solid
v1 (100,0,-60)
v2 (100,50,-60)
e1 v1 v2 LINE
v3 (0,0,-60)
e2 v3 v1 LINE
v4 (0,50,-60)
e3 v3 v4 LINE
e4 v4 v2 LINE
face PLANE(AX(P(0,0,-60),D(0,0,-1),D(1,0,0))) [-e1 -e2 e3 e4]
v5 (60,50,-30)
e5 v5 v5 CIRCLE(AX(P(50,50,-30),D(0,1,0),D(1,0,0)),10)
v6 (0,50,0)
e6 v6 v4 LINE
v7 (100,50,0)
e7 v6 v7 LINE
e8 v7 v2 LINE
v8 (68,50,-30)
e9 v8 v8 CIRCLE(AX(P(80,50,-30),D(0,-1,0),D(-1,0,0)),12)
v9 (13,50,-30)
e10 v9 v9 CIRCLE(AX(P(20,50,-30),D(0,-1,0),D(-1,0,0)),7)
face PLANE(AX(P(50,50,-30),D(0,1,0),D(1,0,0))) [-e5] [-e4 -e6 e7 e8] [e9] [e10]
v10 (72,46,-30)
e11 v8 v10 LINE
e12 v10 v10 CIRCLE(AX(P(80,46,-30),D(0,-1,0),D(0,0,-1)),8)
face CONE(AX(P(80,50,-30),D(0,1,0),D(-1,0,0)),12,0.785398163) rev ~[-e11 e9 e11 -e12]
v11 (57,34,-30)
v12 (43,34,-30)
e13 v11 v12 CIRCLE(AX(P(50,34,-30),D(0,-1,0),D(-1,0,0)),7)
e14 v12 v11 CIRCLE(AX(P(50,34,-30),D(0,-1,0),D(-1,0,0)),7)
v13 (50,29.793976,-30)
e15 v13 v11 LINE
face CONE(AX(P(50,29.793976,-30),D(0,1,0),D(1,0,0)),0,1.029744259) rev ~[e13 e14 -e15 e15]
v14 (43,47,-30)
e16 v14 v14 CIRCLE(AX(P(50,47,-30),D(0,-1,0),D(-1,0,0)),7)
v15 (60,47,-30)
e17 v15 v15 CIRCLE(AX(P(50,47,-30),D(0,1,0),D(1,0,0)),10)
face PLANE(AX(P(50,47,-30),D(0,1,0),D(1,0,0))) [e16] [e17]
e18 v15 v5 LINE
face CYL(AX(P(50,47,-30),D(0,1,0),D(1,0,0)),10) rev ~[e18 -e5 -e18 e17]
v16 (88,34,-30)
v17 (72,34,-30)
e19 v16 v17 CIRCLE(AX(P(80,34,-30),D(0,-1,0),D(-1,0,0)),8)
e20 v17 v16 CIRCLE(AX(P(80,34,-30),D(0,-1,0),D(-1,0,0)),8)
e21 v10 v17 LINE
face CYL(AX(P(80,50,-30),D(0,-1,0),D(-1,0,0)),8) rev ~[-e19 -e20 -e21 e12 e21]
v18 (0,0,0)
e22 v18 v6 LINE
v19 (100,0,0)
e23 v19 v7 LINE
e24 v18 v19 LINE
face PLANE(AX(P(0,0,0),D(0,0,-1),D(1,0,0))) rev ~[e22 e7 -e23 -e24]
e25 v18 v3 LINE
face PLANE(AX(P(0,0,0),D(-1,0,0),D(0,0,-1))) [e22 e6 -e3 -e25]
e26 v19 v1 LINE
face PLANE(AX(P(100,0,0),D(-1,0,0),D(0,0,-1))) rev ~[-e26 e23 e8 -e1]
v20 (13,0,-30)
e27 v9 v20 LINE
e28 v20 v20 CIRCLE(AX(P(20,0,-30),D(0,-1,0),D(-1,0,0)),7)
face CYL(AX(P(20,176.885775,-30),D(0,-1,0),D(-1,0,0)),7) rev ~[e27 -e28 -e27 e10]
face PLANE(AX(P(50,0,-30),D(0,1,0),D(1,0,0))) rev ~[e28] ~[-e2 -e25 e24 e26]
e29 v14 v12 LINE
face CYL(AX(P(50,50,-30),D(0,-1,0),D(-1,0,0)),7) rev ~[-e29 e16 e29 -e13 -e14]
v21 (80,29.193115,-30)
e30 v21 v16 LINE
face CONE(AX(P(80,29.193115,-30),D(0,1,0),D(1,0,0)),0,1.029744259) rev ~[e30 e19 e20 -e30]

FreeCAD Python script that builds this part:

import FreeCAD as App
import Part
import Sketcher
Q = App.Units.Quantity


def add_polygon(sketch, points):
    """Adds a closed chain of lines whose ends are joined by coincident constraints."""
    first, n = sketch.GeometryCount, len(points)
    for a, b in zip(points, points[1:] + points[:1]):
        sketch.addGeometry(Part.LineSegment(App.Vector(*a, 0), App.Vector(*b, 0)), False)
    for i in range(n):
        sketch.addConstraint(Sketcher.Constraint("Coincident", first + i, 2, first + (i + 1) % n, 1))

doc = App.newDocument("Part")
body = doc.addObject("PartDesign::Body", "Body")

sketch1 = body.newObject("Sketcher::SketchObject", "Sketch")
sketch1.AttachmentSupport = (doc.getObject("XZ_Plane"), [""])
sketch1.MapMode = "FlatFace"
add_polygon(sketch1, [(0, -60), (0, 0), (100, 0), (100, -60)])
sketch1.addConstraint(Sketcher.Constraint("Vertical", 0))
sketch1.addConstraint(Sketcher.Constraint("Horizontal", 1))
sketch1.addConstraint(Sketcher.Constraint("Vertical", 2))
sketch1.addConstraint(Sketcher.Constraint("Horizontal", 3))
sketch1.addConstraint(Sketcher.Constraint("Coincident", 0, 2, -1, 1))
sketch1.addConstraint(Sketcher.Constraint("DistanceX", 1, 1, 1, 2, Q("100 mm")))
sketch1.addConstraint(Sketcher.Constraint("DistanceY", 0, 1, 0, 2, Q("60 mm")))
pad1 = body.newObject("PartDesign::Pad", "Pad")
pad1.Profile = sketch1
pad1.Length = 50
pad1.Reversed = True

sketch2 = body.newObject("Sketcher::SketchObject", "Sketch001")
sketch2.AttachmentSupport = (doc.getObject("XZ_Plane"), [""])
sketch2.MapMode = "FlatFace"
sketch2.AttachmentOffset = App.Placement(App.Vector(0, 0, -50), App.Rotation())
sketch2.addGeometry(Part.Circle(App.Vector(50, -30, 0), App.Vector(0, 0, 1), 7), False)
sketch2.addConstraint(Sketcher.Constraint("Diameter", 0, Q("14 mm")))
sketch2.addConstraint(Sketcher.Constraint("DistanceX", -1, 1, 0, 3, Q("50 mm")))
sketch2.addConstraint(Sketcher.Constraint("DistanceY", 0, 3, -1, 1, Q("30 mm")))
doc.recompute()
hole = body.newObject("PartDesign::Hole", "Hole")
hole.Profile = sketch2
hole.ThreadType = "None"
hole.Diameter = 14
hole.DepthType = "Dimension"
hole.Depth = 16
hole.DrillPoint = "Angled"
hole.DrillPointAngle = 118
hole.HoleCutType = "Counterbore"
hole.HoleCutDiameter = 20
hole.HoleCutDepth = 3
hole.Reversed = True

sketch3 = body.newObject("Sketcher::SketchObject", "Sketch002")
sketch3.AttachmentSupport = (doc.getObject("XZ_Plane"), [""])
sketch3.MapMode = "FlatFace"
sketch3.AttachmentOffset = App.Placement(App.Vector(0, 0, -50), App.Rotation())
sketch3.addGeometry(Part.Circle(App.Vector(80, -30, 0), App.Vector(0, 0, 1), 8), False)
sketch3.addConstraint(Sketcher.Constraint("Diameter", 0, Q("16 mm")))
sketch3.addConstraint(Sketcher.Constraint("DistanceX", -1, 1, 0, 3, Q("80 mm")))
sketch3.addConstraint(Sketcher.Constraint("DistanceY", 0, 3, -1, 1, Q("30 mm")))
doc.recompute()
hole2 = body.newObject("PartDesign::Hole", "Hole001")
hole2.Profile = sketch3
hole2.ThreadType = "None"
hole2.Diameter = 16
hole2.DepthType = "Dimension"
hole2.Depth = 16
hole2.DrillPoint = "Angled"
hole2.DrillPointAngle = 118
hole2.HoleCutType = "Countersink"
hole2.HoleCutDiameter = 24
hole2.HoleCutCountersinkAngle = 90
hole2.Reversed = True

sketch4 = body.newObject("Sketcher::SketchObject", "Sketch003")
sketch4.AttachmentSupport = (doc.getObject("XZ_Plane"), [""])
sketch4.MapMode = "FlatFace"
sketch4.AttachmentOffset = App.Placement(App.Vector(0, 0, -50), App.Rotation())
sketch4.addGeometry(Part.Circle(App.Vector(20, -30, 0), App.Vector(0, 0, 1), 7), False)
sketch4.addConstraint(Sketcher.Constraint("Diameter", 0, Q("14 mm")))
sketch4.addConstraint(Sketcher.Constraint("DistanceX", -1, 1, 0, 3, Q("20 mm")))
sketch4.addConstraint(Sketcher.Constraint("DistanceY", 0, 3, -1, 1, Q("30 mm")))
doc.recompute()
hole3 = body.newObject("PartDesign::Hole", "Hole002")
hole3.Profile = sketch4
hole3.ThreadType = "None"
hole3.Diameter = 14
hole3.DepthType = "ThroughAll"
hole3.Reversed = True

doc.recompute()
